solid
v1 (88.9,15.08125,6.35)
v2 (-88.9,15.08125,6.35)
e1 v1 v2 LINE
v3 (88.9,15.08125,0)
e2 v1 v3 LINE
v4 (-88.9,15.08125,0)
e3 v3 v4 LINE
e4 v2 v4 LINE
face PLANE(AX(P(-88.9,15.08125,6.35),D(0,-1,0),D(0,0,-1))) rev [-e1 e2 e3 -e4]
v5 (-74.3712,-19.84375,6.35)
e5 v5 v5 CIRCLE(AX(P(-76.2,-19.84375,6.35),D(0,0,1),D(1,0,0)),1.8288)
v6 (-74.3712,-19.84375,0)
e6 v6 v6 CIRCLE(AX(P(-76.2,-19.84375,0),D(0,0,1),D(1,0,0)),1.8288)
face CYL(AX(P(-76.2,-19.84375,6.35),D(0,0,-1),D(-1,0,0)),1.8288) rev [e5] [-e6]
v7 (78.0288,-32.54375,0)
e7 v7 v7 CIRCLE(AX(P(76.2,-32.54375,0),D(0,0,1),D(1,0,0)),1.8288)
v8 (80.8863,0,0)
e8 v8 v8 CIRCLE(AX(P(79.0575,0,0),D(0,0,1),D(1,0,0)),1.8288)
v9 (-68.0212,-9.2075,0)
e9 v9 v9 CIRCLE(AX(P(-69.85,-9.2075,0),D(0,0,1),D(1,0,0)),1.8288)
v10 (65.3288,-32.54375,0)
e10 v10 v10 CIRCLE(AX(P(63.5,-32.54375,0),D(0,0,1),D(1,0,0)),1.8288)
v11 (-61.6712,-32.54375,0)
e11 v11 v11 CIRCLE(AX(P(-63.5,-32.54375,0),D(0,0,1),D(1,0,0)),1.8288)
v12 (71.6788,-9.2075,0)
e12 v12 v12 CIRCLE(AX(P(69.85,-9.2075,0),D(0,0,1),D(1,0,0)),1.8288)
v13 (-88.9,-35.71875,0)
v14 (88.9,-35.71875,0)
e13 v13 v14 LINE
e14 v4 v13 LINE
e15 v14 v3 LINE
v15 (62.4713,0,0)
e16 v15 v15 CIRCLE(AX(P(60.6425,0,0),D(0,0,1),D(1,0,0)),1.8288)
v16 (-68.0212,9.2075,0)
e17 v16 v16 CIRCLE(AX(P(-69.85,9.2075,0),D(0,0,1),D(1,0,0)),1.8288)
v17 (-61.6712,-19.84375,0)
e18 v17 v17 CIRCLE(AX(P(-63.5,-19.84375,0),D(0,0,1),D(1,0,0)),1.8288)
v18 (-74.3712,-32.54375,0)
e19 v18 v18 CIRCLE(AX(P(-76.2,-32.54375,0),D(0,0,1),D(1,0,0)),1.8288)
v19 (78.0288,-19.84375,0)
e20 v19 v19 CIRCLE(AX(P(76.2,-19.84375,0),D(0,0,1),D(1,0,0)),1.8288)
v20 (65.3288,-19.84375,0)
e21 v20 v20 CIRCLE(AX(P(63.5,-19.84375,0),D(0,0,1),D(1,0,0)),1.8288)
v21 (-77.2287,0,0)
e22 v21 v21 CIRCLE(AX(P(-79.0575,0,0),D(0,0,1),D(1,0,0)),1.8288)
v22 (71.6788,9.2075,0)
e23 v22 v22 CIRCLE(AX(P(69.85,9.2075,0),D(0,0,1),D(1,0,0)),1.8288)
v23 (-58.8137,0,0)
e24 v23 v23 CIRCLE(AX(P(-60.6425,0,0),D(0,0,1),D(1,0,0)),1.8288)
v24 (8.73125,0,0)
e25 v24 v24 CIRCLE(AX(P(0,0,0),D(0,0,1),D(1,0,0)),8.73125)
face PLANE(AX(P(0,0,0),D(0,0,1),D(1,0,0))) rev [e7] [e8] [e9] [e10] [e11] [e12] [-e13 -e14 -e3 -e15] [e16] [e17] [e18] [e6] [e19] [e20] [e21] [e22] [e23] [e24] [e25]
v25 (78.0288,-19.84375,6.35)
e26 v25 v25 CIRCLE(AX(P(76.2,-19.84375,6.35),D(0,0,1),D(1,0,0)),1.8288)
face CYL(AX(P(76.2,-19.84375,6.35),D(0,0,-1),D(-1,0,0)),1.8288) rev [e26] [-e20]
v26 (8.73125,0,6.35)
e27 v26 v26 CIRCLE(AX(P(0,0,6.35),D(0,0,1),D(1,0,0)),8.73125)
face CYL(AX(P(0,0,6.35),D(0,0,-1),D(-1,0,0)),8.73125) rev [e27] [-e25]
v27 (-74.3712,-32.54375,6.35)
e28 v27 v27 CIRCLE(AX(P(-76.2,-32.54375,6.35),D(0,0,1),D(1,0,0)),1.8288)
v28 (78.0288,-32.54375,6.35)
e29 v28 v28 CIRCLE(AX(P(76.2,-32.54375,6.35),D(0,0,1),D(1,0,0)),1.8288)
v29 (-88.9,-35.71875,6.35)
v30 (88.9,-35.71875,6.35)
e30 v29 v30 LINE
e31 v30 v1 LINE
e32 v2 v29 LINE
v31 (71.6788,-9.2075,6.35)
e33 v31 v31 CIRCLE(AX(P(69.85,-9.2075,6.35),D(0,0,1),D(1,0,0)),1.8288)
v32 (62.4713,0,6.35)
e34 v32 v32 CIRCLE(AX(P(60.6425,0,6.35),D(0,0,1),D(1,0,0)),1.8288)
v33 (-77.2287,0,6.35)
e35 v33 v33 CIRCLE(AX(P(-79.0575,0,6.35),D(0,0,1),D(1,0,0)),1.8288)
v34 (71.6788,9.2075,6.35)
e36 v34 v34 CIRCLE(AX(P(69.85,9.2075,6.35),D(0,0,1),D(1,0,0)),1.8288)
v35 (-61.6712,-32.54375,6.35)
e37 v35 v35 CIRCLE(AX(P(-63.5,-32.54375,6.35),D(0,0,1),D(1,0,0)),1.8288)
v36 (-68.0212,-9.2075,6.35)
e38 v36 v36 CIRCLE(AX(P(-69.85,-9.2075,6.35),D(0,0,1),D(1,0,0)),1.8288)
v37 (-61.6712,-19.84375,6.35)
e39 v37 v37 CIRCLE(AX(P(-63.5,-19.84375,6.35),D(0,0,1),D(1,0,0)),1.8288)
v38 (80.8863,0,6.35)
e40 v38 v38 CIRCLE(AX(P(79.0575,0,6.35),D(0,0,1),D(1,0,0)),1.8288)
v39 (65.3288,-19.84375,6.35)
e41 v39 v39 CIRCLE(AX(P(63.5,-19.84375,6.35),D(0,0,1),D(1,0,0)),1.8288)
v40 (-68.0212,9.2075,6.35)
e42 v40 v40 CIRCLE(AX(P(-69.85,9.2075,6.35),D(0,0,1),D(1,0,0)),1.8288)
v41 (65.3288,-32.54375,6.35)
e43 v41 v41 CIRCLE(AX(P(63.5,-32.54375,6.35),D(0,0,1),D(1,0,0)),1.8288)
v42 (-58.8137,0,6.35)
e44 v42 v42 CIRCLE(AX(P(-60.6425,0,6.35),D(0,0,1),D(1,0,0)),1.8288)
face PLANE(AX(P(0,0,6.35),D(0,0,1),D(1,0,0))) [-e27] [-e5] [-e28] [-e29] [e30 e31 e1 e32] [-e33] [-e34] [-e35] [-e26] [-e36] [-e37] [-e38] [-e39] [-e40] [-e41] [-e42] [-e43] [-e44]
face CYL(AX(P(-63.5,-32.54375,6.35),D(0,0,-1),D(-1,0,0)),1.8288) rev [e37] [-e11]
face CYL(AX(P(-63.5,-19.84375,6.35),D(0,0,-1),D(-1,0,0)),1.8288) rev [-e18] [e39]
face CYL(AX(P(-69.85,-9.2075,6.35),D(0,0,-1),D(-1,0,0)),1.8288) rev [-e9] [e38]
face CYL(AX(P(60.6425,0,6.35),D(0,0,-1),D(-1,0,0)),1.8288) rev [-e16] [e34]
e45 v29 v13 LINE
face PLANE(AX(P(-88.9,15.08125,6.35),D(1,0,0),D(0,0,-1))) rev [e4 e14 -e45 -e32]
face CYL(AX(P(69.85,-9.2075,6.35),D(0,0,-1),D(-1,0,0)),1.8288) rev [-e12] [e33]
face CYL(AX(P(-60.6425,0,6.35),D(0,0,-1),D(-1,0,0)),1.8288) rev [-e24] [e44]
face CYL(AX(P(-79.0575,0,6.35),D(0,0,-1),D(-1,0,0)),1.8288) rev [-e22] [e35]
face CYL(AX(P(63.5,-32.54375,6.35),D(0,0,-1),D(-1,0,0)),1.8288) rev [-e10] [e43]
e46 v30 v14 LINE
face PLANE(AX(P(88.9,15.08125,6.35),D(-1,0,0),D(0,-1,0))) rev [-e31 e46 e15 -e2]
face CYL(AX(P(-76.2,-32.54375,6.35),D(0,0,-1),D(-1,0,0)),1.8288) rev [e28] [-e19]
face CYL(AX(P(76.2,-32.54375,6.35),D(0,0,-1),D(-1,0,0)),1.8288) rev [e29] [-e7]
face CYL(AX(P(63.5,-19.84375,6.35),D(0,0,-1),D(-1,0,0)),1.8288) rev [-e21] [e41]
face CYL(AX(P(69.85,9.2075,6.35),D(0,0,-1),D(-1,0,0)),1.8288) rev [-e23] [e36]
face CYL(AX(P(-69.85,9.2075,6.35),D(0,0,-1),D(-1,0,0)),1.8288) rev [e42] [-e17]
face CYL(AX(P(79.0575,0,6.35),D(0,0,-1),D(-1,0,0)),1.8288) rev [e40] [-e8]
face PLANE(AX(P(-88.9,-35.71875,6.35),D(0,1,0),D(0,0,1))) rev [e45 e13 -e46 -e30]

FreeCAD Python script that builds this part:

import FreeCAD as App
import Part
import Sketcher
Q = App.Units.Quantity


def add_polygon(sketch, points):
    """Adds a closed chain of lines whose ends are joined by coincident constraints."""
    first, n = sketch.GeometryCount, len(points)
    for a, b in zip(points, points[1:] + points[:1]):
        sketch.addGeometry(Part.LineSegment(App.Vector(*a, 0), App.Vector(*b, 0)), False)
    for i in range(n):
        sketch.addConstraint(Sketcher.Constraint("Coincident", first + i, 2, first + (i + 1) % n, 1))

doc = App.newDocument("Part")
body = doc.addObject("PartDesign::Body", "Body")

# Sketch on XY plane
sketch1 = body.newObject("Sketcher::SketchObject", "Sketch")
sketch1.AttachmentSupport = (doc.getObject("XY_Plane"), [""])
sketch1.MapMode = "FlatFace"
add_polygon(sketch1, [(-88.9, 15.08125), (-88.9, -35.71875), (88.9, -35.71875), (88.9, 15.08125)])  # lines 0-3
sketch1.addGeometry(Part.Circle(App.Vector(-76.2, -32.54375, 0), App.Vector(0, 0, 1), 1.8288), False)  # 4
sketch1.addGeometry(Part.Circle(App.Vector(-63.5, -32.54375, 0), App.Vector(0, 0, 1), 1.8288), False)  # 5
sketch1.addGeometry(Part.Circle(App.Vector(-76.2, -19.84375, 0), App.Vector(0, 0, 1), 1.8288), False)  # 6
sketch1.addGeometry(Part.Circle(App.Vector(-63.5, -19.84375, 0), App.Vector(0, 0, 1), 1.8288), False)  # 7
sketch1.addGeometry(Part.Circle(App.Vector(63.5, -32.54375, 0), App.Vector(0, 0, 1), 1.8288), False)  # 8
sketch1.addGeometry(Part.Circle(App.Vector(76.2, -32.54375, 0), App.Vector(0, 0, 1), 1.8288), False)  # 9
sketch1.addGeometry(Part.Circle(App.Vector(63.5, -19.84375, 0), App.Vector(0, 0, 1), 1.8288), False)  # 10
sketch1.addGeometry(Part.Circle(App.Vector(76.2, -19.84375, 0), App.Vector(0, 0, 1), 1.8288), False)  # 11
sketch1.addGeometry(Part.Circle(App.Vector(-69.85, -9.2075, 0), App.Vector(0, 0, 1), 1.8288), False)  # 12
sketch1.addGeometry(Part.Circle(App.Vector(-79.0575, 0, 0), App.Vector(0, 0, 1), 1.8288), False)  # 13
sketch1.addGeometry(Part.Circle(App.Vector(-60.6425, 0, 0), App.Vector(0, 0, 1), 1.8288), False)  # 14
sketch1.addGeometry(Part.Circle(App.Vector(-69.85, 9.2075, 0), App.Vector(0, 0, 1), 1.8288), False)  # 15
sketch1.addGeometry(Part.Circle(App.Vector(69.85, -9.2075, 0), App.Vector(0, 0, 1), 1.8288), False)  # 16
sketch1.addGeometry(Part.Circle(App.Vector(0, 0, 0), App.Vector(0, 0, 1), 8.73125), False)  # 17
sketch1.addGeometry(Part.Circle(App.Vector(60.6425, 0, 0), App.Vector(0, 0, 1), 1.8288), False)  # 18
sketch1.addGeometry(Part.Circle(App.Vector(79.0575, 0, 0), App.Vector(0, 0, 1), 1.8288), False)  # 19
sketch1.addGeometry(Part.Circle(App.Vector(69.85, 9.2075, 0), App.Vector(0, 0, 1), 1.8288), False)  # 20
sketch1.addConstraint([
    Sketcher.Constraint("Vertical", 0),
    Sketcher.Constraint("Horizontal", 1),
    Sketcher.Constraint("Vertical", 2),
    Sketcher.Constraint("Horizontal", 3),
    Sketcher.Constraint("Coincident", 17, 3, -1, 1),
    Sketcher.Constraint("Equal", 4, 5),
    Sketcher.Constraint("Equal", 5, 6),
    Sketcher.Constraint("Equal", 6, 7),
    Sketcher.Constraint("Equal", 7, 8),
    Sketcher.Constraint("Equal", 8, 9),
    Sketcher.Constraint("Equal", 9, 10),
    Sketcher.Constraint("Equal", 10, 11),
    Sketcher.Constraint("Equal", 11, 12),
    Sketcher.Constraint("Equal", 12, 13),
    Sketcher.Constraint("Equal", 13, 14),
    Sketcher.Constraint("Equal", 14, 15),
    Sketcher.Constraint("Equal", 15, 16),
    Sketcher.Constraint("Equal", 16, 18),
    Sketcher.Constraint("Equal", 18, 19),
    Sketcher.Constraint("Equal", 19, 20),
    Sketcher.Constraint("Symmetric", 15, 3, 16, 3, -1, 1),
    Sketcher.Constraint("Symmetric", 14, 3, 18, 3, -1, 1),
    Sketcher.Constraint("Symmetric", 13, 3, 19, 3, -1, 1),
    Sketcher.Constraint("Symmetric", 12, 3, 20, 3, -1, 1),
    Sketcher.Constraint("Symmetric", 5, 3, 8, 3, -2),
    Sketcher.Constraint("Symmetric", 4, 3, 9, 3, -2),
    Sketcher.Constraint("Symmetric", 7, 3, 10, 3, -2),
    Sketcher.Constraint("Symmetric", 6, 3, 11, 3, -2),
    Sketcher.Constraint("Symmetric", 12, 3, 16, 3, -2),
    Sketcher.Constraint("PointOnObject", 13, 3, -1),
    Sketcher.Constraint("PointOnObject", 14, 3, -1),
    Sketcher.Constraint("Horizontal", 4, 3, 5, 3),
    Sketcher.Constraint("Horizontal", 6, 3, 7, 3),
    Sketcher.Constraint("Vertical", 4, 3, 6, 3),
    Sketcher.Constraint("Vertical", 5, 3, 7, 3),
    Sketcher.Constraint("DistanceX", 1, 1, 1, 2, Q("7 in")),
    Sketcher.Constraint("DistanceY", 0, 2, 0, 1, Q("2 in")),
    Sketcher.Constraint("Diameter", 4, Q("0.144 in")),
    Sketcher.Constraint("Diameter", 17, Q("0.6875 in")),
    Sketcher.Constraint("DistanceX", 4, 3, -1, 1, Q("3 in")),
    Sketcher.Constraint("DistanceX", 5, 3, 8, 3, Q("5 in")),
    Sketcher.Constraint("DistanceX", 0, 2, 5, 3, Q("1 in")),
    Sketcher.Constraint("DistanceY", 4, 3, 6, 3, Q("0.5 in")),
    Sketcher.Constraint("DistanceX", 12, 3, -1, 1, Q("2.75 in")),
    Sketcher.Constraint("DistanceY", 4, 3, -1, 1, Q("1.28125 in")),
    Sketcher.Constraint("DistanceY", 0, 2, -1, 1, Q("1.40625 in")),
    Sketcher.Constraint("DistanceX", 13, 3, 14, 3, Q("0.725 in")),
    Sketcher.Constraint("DistanceY", 12, 3, 15, 3, Q("0.725 in")),
    Sketcher.Constraint("DistanceX", 13, 3, -1, 1, Q("3.1125 in")),
])
pad1 = body.newObject("PartDesign::Pad", "Pad")
pad1.Profile = sketch1
pad1.Length = Q("0.25 in")

doc.recompute()
